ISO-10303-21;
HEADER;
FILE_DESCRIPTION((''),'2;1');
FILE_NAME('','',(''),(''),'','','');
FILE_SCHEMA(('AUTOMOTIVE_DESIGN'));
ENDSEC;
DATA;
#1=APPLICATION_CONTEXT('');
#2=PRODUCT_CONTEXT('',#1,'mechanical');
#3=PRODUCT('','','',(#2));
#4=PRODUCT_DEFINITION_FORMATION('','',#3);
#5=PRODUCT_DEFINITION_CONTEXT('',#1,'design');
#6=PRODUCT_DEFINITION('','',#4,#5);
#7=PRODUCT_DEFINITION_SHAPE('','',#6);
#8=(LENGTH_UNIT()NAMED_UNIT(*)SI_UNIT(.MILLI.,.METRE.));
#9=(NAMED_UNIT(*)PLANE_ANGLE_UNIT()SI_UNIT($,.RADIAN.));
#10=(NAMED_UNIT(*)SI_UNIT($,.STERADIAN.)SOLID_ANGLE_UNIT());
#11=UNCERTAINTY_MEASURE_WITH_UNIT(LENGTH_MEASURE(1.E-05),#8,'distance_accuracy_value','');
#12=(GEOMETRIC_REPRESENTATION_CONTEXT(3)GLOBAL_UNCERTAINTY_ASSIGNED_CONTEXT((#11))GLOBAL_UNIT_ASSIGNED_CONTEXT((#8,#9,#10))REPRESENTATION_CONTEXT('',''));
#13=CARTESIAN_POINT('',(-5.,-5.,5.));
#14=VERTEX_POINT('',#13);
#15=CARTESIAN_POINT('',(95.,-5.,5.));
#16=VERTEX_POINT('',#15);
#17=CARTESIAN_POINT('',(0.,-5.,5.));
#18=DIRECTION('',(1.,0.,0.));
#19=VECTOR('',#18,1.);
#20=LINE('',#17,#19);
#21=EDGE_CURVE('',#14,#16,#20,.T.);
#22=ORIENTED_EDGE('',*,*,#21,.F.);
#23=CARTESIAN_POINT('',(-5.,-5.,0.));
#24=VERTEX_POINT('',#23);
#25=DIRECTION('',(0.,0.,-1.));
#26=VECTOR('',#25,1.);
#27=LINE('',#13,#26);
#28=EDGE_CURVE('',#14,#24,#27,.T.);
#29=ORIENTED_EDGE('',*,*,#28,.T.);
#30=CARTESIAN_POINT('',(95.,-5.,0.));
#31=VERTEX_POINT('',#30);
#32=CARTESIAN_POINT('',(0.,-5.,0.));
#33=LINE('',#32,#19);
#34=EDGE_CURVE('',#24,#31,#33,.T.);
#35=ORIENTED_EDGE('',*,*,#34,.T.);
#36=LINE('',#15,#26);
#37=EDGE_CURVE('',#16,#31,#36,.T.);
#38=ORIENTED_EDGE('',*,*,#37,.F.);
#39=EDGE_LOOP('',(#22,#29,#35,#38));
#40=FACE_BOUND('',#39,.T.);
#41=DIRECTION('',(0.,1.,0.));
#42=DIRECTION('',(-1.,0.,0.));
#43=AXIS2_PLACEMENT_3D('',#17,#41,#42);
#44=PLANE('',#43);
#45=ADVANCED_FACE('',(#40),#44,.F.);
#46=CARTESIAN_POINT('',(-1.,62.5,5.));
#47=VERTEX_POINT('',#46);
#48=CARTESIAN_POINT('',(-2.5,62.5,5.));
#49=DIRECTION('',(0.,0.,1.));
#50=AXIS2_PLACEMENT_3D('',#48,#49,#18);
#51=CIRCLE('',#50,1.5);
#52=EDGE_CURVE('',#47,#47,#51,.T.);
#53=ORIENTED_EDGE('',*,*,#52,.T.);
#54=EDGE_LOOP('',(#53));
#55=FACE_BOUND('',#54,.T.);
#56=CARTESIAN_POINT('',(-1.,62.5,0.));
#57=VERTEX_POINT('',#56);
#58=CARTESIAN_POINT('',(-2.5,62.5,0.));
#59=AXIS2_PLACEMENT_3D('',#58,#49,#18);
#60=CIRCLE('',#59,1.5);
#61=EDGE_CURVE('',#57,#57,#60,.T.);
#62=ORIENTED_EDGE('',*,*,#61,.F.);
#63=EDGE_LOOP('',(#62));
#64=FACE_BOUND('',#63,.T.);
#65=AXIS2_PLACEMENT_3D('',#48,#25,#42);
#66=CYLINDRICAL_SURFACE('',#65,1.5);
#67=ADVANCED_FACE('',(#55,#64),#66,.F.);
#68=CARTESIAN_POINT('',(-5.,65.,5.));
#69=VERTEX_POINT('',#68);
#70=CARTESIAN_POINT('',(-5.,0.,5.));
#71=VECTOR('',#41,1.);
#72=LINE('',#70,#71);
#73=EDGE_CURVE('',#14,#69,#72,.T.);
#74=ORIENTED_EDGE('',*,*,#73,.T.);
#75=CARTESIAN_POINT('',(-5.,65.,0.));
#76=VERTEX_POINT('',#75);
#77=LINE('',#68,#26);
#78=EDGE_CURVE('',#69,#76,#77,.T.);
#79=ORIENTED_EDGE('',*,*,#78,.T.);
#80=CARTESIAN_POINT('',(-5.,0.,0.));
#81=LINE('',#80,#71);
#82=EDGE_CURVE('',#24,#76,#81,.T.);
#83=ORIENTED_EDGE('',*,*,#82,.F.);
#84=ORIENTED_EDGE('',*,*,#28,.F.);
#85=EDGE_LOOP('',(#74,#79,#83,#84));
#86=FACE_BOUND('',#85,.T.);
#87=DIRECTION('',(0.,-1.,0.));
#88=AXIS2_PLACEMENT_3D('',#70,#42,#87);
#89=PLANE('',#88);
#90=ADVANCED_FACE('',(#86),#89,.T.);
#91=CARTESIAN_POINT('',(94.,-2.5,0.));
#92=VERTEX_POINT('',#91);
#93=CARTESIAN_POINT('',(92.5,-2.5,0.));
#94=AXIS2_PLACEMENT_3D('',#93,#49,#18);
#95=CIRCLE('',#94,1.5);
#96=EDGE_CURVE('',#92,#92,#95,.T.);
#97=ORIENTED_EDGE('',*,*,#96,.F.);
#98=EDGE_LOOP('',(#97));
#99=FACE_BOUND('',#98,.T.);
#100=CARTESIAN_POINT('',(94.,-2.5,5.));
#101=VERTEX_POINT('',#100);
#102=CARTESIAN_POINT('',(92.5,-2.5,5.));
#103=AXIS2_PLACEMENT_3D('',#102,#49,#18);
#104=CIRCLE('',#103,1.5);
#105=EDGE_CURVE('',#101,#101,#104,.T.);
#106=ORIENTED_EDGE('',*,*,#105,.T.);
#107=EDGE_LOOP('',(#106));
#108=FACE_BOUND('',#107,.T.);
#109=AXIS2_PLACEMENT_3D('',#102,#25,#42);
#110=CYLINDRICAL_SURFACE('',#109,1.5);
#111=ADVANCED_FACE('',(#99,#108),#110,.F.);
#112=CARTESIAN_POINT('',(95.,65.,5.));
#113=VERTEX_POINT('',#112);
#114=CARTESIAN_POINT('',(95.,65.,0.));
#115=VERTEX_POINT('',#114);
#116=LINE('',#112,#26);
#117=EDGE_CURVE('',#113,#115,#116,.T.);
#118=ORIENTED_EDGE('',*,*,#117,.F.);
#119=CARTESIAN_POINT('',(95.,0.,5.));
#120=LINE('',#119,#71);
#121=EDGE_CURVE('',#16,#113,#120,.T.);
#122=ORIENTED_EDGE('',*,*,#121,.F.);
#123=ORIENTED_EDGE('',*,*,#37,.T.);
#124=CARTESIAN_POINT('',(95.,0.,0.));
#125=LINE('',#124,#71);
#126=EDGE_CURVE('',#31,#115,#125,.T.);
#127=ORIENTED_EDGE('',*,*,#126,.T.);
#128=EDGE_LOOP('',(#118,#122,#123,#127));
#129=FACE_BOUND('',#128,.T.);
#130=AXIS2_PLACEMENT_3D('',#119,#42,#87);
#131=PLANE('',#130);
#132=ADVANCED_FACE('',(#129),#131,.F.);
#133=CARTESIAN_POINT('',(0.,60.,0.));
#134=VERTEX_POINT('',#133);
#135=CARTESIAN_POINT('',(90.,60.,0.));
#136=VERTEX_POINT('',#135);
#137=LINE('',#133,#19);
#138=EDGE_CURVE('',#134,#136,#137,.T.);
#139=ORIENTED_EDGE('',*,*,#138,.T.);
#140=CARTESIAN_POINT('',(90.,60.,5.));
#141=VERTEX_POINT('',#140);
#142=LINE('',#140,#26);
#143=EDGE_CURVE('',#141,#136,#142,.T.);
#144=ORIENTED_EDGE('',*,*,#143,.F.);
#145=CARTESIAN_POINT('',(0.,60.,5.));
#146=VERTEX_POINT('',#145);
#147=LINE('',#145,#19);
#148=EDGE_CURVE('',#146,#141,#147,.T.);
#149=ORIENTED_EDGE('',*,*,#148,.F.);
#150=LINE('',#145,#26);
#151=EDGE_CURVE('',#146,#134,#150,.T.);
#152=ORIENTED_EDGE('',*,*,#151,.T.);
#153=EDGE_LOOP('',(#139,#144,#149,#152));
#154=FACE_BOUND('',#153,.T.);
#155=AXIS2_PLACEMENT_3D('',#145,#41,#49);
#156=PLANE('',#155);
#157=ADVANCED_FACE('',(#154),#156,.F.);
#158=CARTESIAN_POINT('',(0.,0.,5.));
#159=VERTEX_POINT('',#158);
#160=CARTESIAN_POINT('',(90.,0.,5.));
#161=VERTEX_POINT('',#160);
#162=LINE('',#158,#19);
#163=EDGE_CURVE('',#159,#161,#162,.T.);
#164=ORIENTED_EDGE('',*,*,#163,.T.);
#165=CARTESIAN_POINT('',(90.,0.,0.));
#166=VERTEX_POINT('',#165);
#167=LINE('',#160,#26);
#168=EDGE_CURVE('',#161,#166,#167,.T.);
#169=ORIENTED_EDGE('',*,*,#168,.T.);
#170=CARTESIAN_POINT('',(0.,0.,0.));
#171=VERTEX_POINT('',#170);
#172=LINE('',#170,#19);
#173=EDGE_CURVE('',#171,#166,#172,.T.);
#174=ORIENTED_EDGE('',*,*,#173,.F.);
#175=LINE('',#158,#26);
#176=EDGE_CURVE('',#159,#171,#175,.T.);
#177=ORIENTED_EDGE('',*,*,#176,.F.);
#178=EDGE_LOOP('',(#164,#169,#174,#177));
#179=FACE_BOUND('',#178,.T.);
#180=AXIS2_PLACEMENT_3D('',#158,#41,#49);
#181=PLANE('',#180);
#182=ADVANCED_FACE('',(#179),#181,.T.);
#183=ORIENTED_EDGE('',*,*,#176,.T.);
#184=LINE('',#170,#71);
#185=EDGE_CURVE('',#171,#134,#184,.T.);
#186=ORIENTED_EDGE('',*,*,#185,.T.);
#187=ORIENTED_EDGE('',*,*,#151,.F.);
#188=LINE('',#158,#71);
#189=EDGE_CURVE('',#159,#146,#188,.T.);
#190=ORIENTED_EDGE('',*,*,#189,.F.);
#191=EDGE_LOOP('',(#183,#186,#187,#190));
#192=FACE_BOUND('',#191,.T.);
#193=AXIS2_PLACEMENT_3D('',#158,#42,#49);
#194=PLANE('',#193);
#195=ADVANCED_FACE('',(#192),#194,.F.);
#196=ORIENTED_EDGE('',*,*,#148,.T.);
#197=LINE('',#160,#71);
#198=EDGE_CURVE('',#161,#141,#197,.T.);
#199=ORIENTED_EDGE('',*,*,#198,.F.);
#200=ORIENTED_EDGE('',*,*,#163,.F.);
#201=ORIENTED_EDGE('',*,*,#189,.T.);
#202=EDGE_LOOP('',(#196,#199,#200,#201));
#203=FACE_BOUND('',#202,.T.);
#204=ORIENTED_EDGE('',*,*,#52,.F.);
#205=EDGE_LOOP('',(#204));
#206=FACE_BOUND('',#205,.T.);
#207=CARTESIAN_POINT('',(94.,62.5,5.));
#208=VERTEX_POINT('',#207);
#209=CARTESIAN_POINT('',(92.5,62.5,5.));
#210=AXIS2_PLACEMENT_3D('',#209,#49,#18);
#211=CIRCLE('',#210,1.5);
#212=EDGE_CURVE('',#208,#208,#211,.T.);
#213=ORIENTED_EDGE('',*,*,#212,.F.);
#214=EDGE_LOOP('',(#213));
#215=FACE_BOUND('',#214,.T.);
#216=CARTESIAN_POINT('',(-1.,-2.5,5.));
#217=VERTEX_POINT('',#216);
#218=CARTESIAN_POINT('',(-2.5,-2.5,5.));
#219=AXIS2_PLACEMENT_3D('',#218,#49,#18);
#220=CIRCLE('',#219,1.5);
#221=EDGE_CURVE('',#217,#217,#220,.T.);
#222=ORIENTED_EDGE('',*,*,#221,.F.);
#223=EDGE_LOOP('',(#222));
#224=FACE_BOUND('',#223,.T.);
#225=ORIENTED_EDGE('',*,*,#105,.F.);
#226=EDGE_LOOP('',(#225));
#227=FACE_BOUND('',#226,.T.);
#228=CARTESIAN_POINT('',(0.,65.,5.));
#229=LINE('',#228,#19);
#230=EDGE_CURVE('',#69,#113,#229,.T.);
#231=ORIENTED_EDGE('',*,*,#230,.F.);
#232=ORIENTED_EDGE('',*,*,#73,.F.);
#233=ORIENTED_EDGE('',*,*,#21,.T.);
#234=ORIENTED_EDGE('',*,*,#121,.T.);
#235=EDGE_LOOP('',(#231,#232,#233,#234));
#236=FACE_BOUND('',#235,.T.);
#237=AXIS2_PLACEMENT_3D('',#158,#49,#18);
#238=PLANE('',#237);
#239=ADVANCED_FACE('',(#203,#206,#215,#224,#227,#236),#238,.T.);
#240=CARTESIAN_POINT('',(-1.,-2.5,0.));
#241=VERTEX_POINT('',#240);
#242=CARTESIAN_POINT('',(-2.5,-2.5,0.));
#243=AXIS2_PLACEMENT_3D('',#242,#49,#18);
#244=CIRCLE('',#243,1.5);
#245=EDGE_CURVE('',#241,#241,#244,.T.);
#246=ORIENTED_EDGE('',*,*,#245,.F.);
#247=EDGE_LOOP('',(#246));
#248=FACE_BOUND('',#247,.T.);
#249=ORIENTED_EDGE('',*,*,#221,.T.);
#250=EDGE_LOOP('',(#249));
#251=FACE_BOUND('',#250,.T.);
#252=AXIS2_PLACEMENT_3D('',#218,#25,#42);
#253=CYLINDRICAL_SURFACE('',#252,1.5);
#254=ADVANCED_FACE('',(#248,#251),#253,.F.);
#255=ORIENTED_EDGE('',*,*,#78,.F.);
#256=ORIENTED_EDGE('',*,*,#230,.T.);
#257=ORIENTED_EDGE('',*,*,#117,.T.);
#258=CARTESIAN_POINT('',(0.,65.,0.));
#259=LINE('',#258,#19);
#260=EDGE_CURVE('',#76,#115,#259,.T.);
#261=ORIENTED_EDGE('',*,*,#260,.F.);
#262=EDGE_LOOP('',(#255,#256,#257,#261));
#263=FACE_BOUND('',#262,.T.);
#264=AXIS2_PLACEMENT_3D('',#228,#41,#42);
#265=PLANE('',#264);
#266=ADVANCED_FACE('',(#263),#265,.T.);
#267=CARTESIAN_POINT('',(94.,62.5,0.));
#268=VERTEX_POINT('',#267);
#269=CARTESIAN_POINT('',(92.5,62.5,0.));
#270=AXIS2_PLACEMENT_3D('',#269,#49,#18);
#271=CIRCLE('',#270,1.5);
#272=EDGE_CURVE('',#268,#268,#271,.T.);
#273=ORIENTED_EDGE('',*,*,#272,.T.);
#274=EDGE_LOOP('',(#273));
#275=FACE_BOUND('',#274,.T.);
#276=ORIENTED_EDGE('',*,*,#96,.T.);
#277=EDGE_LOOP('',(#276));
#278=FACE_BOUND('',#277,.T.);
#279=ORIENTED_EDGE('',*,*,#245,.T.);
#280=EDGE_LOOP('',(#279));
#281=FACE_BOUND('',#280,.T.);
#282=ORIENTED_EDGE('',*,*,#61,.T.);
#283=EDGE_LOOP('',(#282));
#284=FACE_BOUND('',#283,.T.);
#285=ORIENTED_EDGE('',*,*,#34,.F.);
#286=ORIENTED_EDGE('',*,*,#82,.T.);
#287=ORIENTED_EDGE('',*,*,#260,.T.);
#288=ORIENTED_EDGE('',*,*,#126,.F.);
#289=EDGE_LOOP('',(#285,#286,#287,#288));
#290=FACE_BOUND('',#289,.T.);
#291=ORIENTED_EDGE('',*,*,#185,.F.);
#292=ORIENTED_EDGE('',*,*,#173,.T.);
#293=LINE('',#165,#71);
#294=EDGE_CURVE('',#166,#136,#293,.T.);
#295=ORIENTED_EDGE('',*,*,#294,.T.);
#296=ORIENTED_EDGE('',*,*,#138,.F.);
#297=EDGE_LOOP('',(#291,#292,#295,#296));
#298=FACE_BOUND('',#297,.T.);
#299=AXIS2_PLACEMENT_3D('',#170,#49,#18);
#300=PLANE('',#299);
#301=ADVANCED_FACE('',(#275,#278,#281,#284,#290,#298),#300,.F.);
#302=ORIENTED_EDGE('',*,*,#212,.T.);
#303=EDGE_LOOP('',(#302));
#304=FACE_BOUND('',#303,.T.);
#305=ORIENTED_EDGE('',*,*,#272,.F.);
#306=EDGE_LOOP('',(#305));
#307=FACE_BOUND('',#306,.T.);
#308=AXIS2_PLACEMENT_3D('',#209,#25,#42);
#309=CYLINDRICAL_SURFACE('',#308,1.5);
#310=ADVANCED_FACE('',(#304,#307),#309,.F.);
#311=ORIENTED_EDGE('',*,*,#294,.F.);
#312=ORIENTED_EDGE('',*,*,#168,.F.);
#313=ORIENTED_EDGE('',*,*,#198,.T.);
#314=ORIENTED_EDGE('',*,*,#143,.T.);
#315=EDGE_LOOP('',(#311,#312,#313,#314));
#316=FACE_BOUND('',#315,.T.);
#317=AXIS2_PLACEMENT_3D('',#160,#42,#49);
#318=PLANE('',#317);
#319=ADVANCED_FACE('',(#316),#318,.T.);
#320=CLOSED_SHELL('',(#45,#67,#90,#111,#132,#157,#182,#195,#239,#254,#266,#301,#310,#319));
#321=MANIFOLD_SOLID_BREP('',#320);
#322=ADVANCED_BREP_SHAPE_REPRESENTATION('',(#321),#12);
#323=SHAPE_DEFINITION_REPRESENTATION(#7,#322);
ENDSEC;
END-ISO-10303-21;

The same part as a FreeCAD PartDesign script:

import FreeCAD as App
import Part
import Sketcher
Q = App.Units.Quantity


def add_polygon(sketch, points):
    """Adds a closed chain of lines whose ends are joined by coincident constraints."""
    first, n = sketch.GeometryCount, len(points)
    for a, b in zip(points, points[1:] + points[:1]):
        sketch.addGeometry(Part.LineSegment(App.Vector(*a, 0), App.Vector(*b, 0)), False)
    for i in range(n):
        sketch.addConstraint(Sketcher.Constraint("Coincident", first + i, 2, first + (i + 1) % n, 1))

doc = App.newDocument("Part")
body = doc.addObject("PartDesign::Body", "Body")

sketch1 = body.newObject("Sketcher::SketchObject", "Sketch")
sketch1.AttachmentSupport = (doc.getObject("XY_Plane"), [""])
sketch1.MapMode = "FlatFace"
add_polygon(sketch1, [(-5, 65), (-5, -5), (95, -5), (95, 65)])
sketch1.addGeometry(Part.Circle(App.Vector(-2.5, -2.5, 0), App.Vector(0, 0, 1), 1.5), False)
sketch1.addGeometry(Part.Circle(App.Vector(92.5, -2.5, 0), App.Vector(0, 0, 1), 1.5), False)
add_polygon(sketch1, [(90, 0), (0, 0), (0, 60), (90, 60)])
sketch1.addGeometry(Part.Circle(App.Vector(-2.5, 62.5, 0), App.Vector(0, 0, 1), 1.5), False)
sketch1.addGeometry(Part.Circle(App.Vector(92.5, 62.5, 0), App.Vector(0, 0, 1), 1.5), False)
sketch1.addConstraint([
    Sketcher.Constraint("Vertical", 0),
    Sketcher.Constraint("Horizontal", 1),
    Sketcher.Constraint("Vertical", 2),
    Sketcher.Constraint("Horizontal", 3),
    Sketcher.Constraint("Horizontal", 6),
    Sketcher.Constraint("Vertical", 7),
    Sketcher.Constraint("Horizontal", 8),
    Sketcher.Constraint("Vertical", 9),
    Sketcher.Constraint("Coincident", 6, 2, -1, 1),
    Sketcher.Constraint("Equal", 4, 5),
    Sketcher.Constraint("Equal", 5, 10),
    Sketcher.Constraint("Equal", 10, 11),
    Sketcher.Constraint("Horizontal", 4, 3, 5, 3),
    Sketcher.Constraint("Horizontal", 10, 3, 11, 3),
    Sketcher.Constraint("Vertical", 4, 3, 10, 3),
    Sketcher.Constraint("Vertical", 5, 3, 11, 3),
    Sketcher.Constraint("Diameter", 4, Q("3 mm")),
    Sketcher.Constraint("DistanceX", 1, 1, 1, 2, Q("100 mm")),
    Sketcher.Constraint("DistanceX", 6, 2, 6, 1, Q("90 mm")),
    Sketcher.Constraint("DistanceY", 0, 2, 0, 1, Q("70 mm")),
    Sketcher.Constraint("DistanceY", 7, 1, 7, 2, Q("60 mm")),
    Sketcher.Constraint("DistanceX", 0, 2, -1, 1, Q("5 mm")),
    Sketcher.Constraint("DistanceY", 0, 2, -1, 1, Q("5 mm")),
    Sketcher.Constraint("DistanceX", 4, 3, 5, 3, Q("95 mm")),
    Sketcher.Constraint("DistanceY", 4, 3, 10, 3, Q("65 mm")),
    Sketcher.Constraint("DistanceX", 4, 3, -1, 1, Q("2.5 mm")),
    Sketcher.Constraint("DistanceY", 4, 3, -1, 1, Q("2.5 mm")),
])
pad1 = body.newObject("PartDesign::Pad", "Pad")
pad1.Profile = sketch1
pad1.Length = 5

doc.recompute()
